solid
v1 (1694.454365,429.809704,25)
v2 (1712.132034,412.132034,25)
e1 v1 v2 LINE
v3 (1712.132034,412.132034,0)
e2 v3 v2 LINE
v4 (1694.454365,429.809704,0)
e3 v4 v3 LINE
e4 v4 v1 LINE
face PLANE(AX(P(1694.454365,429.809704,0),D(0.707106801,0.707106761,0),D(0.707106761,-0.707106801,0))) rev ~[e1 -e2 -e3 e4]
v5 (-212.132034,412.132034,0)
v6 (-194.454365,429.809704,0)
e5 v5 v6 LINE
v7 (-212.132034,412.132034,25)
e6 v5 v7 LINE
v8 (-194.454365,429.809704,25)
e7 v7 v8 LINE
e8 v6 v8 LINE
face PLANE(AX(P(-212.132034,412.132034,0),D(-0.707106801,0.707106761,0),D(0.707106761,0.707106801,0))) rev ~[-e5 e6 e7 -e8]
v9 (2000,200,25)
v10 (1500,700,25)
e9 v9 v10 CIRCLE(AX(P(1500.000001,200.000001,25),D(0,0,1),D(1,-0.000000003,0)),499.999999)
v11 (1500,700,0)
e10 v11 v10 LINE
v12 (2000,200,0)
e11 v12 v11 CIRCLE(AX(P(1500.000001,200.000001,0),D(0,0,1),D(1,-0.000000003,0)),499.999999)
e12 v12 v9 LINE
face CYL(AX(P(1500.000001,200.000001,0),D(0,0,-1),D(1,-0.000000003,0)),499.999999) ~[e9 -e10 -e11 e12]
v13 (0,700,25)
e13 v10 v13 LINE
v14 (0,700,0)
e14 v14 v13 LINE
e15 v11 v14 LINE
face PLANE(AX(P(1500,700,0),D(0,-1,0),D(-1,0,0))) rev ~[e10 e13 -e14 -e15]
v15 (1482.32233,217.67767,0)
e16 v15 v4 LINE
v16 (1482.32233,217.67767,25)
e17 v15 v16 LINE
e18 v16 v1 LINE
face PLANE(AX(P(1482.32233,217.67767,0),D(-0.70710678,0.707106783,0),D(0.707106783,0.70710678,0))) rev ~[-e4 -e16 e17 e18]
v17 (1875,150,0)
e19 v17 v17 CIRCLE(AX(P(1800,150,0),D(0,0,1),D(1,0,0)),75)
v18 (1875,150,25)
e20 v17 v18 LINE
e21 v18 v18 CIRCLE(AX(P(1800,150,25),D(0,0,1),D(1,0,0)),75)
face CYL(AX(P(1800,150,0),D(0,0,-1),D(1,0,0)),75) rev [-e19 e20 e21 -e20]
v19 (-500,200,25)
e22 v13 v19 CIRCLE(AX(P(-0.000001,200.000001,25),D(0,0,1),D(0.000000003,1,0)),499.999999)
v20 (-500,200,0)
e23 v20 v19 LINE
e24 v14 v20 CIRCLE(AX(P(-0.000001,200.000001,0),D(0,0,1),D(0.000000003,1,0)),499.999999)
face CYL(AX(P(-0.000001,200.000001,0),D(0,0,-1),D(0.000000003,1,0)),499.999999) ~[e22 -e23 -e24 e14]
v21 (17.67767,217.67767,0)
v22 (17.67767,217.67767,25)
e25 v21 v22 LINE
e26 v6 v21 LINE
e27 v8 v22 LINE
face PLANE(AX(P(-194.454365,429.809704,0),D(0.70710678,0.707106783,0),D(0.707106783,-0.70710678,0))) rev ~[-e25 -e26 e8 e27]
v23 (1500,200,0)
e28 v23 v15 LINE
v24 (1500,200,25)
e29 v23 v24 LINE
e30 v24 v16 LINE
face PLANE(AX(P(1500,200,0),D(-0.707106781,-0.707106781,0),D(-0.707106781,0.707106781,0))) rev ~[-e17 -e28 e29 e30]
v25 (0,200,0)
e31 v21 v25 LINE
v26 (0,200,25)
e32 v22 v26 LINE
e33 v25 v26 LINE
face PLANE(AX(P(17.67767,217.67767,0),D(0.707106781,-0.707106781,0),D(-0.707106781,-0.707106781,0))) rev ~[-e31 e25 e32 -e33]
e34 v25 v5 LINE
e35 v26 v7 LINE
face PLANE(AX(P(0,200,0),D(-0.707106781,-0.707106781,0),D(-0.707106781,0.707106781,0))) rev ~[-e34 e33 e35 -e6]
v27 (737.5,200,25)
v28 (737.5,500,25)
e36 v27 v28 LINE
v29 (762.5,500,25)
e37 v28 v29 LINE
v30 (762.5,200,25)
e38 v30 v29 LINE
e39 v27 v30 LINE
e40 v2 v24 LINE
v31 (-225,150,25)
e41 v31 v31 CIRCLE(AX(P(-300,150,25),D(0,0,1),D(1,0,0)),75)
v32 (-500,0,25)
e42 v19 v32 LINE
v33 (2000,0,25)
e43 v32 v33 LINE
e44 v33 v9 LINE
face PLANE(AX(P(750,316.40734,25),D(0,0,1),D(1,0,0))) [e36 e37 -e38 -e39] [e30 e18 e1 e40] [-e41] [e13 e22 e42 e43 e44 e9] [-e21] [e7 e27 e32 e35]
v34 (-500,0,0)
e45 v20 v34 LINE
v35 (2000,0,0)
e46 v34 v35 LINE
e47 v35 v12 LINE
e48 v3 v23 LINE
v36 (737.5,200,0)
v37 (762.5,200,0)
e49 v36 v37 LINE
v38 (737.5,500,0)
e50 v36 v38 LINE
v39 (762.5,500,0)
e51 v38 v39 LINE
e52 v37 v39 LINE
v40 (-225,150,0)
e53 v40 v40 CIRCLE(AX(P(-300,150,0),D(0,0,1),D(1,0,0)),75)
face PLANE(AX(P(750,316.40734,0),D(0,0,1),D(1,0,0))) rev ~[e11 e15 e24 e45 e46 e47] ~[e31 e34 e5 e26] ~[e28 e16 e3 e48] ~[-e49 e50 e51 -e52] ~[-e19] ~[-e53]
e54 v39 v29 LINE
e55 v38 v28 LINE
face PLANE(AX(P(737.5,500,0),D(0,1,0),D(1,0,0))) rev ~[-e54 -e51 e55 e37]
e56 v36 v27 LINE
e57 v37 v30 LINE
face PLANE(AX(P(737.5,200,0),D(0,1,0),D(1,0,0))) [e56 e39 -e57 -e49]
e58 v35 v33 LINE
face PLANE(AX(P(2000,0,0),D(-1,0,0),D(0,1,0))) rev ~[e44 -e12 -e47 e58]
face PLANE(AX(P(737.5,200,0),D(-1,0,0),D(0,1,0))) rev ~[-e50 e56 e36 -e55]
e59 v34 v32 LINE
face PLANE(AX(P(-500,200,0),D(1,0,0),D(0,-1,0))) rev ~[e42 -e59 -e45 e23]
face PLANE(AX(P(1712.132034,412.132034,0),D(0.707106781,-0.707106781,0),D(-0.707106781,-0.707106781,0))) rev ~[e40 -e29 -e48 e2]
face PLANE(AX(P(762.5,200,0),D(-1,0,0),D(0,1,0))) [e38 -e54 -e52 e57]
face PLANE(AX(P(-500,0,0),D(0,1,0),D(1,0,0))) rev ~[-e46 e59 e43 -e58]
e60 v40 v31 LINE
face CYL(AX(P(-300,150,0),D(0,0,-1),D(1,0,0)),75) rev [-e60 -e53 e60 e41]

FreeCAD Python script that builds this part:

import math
import FreeCAD as App
import Part
import Sketcher

V = App.Vector
Q = App.Units.Quantity

doc = App.newDocument("Part")
params = doc.addObject("Spreadsheet::Sheet", "Params")
for row, (alias, value) in enumerate([
    ("sketch1_diameter", "150 mm"),
    ("sketch1_radius", "499.999999 mm"),
    ("sketch1_width", "2500 mm"),
    ("sketch1_width2", "25 mm"),
    ("sketch1_height", "200 mm"),
    ("pad1_length", "25 mm"),
], start=1):
    params.set(f"A{row}", alias)
    params.set(f"B{row}", "=" + value)
    params.setAlias(f"B{row}", alias)

body = doc.addObject("PartDesign::Body", "Body")

sketch1 = body.newObject("Sketcher::SketchObject", "Sketch")
sketch1.AttachmentSupport = (doc.getObject("XY_Plane"), [""])
sketch1.MapMode = "FlatFace"
sketch1.addGeometry(Part.LineSegment(V(-500, 200, 0), V(-500, 0, 0)), False)
sketch1.addGeometry(Part.LineSegment(V(-500, 0, 0), V(2000, 0, 0)), False)
sketch1.addGeometry(Part.LineSegment(V(2000, 0, 0), V(2000, 200, 0)), False)
sketch1.addGeometry(Part.ArcOfCircle(Part.Circle(V(1500, 200, 0), V(0, 0, 1), 500), math.radians(0), math.radians(90)), False)
sketch1.addGeometry(Part.LineSegment(V(1500, 700, 0), V(0, 700, 0)), False)
sketch1.addGeometry(Part.ArcOfCircle(Part.Circle(V(0, 200, 0), V(0, 0, 1), 500), math.radians(90), math.radians(180)), False)
sketch1.addGeometry(Part.Circle(V(-300, 150, 0), V(0, 0, 1), 75), False)
sketch1.addGeometry(Part.Circle(V(1800, 150, 0), V(0, 0, 1), 75), False)
sketch1.addGeometry(Part.LineSegment(V(-194, 430, 0), V(18, 218, 0)), False)
sketch1.addGeometry(Part.LineSegment(V(18, 218, 0), V(0, 200, 0)), False)
sketch1.addGeometry(Part.LineSegment(V(0, 200, 0), V(-212, 412, 0)), False)
sketch1.addGeometry(Part.LineSegment(V(-212, 412, 0), V(-194, 430, 0)), False)
sketch1.addGeometry(Part.LineSegment(V(762, 200, 0), V(738, 200, 0)), False)
sketch1.addGeometry(Part.LineSegment(V(738, 200, 0), V(738, 500, 0)), False)
sketch1.addGeometry(Part.LineSegment(V(738, 500, 0), V(762, 500, 0)), False)
sketch1.addGeometry(Part.LineSegment(V(762, 500, 0), V(762, 200, 0)), False)
sketch1.addGeometry(Part.LineSegment(V(1694, 430, 0), V(1712, 412, 0)), False)
sketch1.addGeometry(Part.LineSegment(V(1712, 412, 0), V(1500, 200, 0)), False)
sketch1.addGeometry(Part.LineSegment(V(1500, 200, 0), V(1482, 218, 0)), False)
sketch1.addGeometry(Part.LineSegment(V(1482, 218, 0), V(1694, 430, 0)), False)
sketch1.addConstraint(Sketcher.Constraint("Coincident", 0, 2, 1, 1))
sketch1.addConstraint(Sketcher.Constraint("Coincident", 1, 2, 2, 1))
sketch1.addConstraint(Sketcher.Constraint("Tangent", 2, 2, 3, 1))
sketch1.addConstraint(Sketcher.Constraint("Tangent", 3, 2, 4, 1))
sketch1.addConstraint(Sketcher.Constraint("Tangent", 4, 2, 5, 1))
sketch1.addConstraint(Sketcher.Constraint("Tangent", 5, 2, 0, 1))
sketch1.addConstraint(Sketcher.Constraint("Coincident", 8, 2, 9, 1))
sketch1.addConstraint(Sketcher.Constraint("Coincident", 9, 2, 10, 1))
sketch1.addConstraint(Sketcher.Constraint("Coincident", 10, 2, 11, 1))
sketch1.addConstraint(Sketcher.Constraint("Coincident", 11, 2, 8, 1))
sketch1.addConstraint(Sketcher.Constraint("Coincident", 12, 2, 13, 1))
sketch1.addConstraint(Sketcher.Constraint("Coincident", 13, 2, 14, 1))
sketch1.addConstraint(Sketcher.Constraint("Coincident", 14, 2, 15, 1))
sketch1.addConstraint(Sketcher.Constraint("Coincident", 15, 2, 12, 1))
sketch1.addConstraint(Sketcher.Constraint("Coincident", 16, 2, 17, 1))
sketch1.addConstraint(Sketcher.Constraint("Coincident", 17, 2, 18, 1))
sketch1.addConstraint(Sketcher.Constraint("Coincident", 18, 2, 19, 1))
sketch1.addConstraint(Sketcher.Constraint("Coincident", 19, 2, 16, 1))
sketch1.addConstraint(Sketcher.Constraint("Vertical", 0))
sketch1.addConstraint(Sketcher.Constraint("Horizontal", 1))
sketch1.addConstraint(Sketcher.Constraint("Vertical", 2))
sketch1.addConstraint(Sketcher.Constraint("Horizontal", 4))
sketch1.addConstraint(Sketcher.Constraint("Horizontal", 12))
sketch1.addConstraint(Sketcher.Constraint("Vertical", 13))
sketch1.addConstraint(Sketcher.Constraint("Horizontal", 14))
sketch1.addConstraint(Sketcher.Constraint("Vertical", 15))
sketch1.addConstraint(Sketcher.Constraint("Coincident", 9, 2, 5, 3))
sketch1.addConstraint(Sketcher.Constraint("Coincident", 17, 2, 3, 3))
sketch1.addConstraint(Sketcher.Constraint("Equal", 3, 5))
sketch1.addConstraint(Sketcher.Constraint("Equal", 6, 7))
sketch1.addConstraint(Sketcher.Constraint("PointOnObject", 5, 3, -2))
sketch1.addConstraint(Sketcher.Constraint("PointOnObject", 0, 2, -1))
sketch1.addConstraint(Sketcher.Constraint("Perpendicular", 8, 9))
sketch1.addConstraint(Sketcher.Constraint("Perpendicular", 9, 10))
sketch1.addConstraint(Sketcher.Constraint("Perpendicular", 10, 11))
sketch1.addConstraint(Sketcher.Constraint("Perpendicular", 11, 16))
sketch1.addConstraint(Sketcher.Constraint("Perpendicular", 16, 17))
sketch1.addConstraint(Sketcher.Constraint("Perpendicular", 17, 18))
sketch1.addConstraint(Sketcher.Constraint("Perpendicular", 18, 19))
sketch1.addConstraint(Sketcher.Constraint("Horizontal", 6, 3, 7, 3))
sketch1.addConstraint(Sketcher.Constraint("Horizontal", 9, 2, 12, 2))
sketch1.addConstraint(Sketcher.Constraint("Horizontal", 10, 2, 16, 2))
sketch1.addConstraint(Sketcher.Constraint("Horizontal", 8, 2, 18, 2))
sketch1.addConstraint(Sketcher.Constraint("Equal", 11, 16))
sketch1.addConstraint(Sketcher.Constraint("Diameter", 6, Q("150 mm")))
sketch1.addConstraint(Sketcher.Constraint("Radius", 3, Q("499.999999 mm")))
sketch1.addConstraint(Sketcher.Constraint("DistanceX", 1, 1, 1, 2, Q("2500 mm")))
sketch1.addConstraint(Sketcher.Constraint("DistanceX", 12, 2, 12, 1, Q("25 mm")))
sketch1.addConstraint(Sketcher.Constraint("DistanceY", 0, 2, 0, 1, Q("200 mm")))
sketch1.addConstraint(Sketcher.Constraint("DistanceY", 13, 1, 13, 2, Q("300 mm")))
sketch1.addConstraint(Sketcher.Constraint("Distance", 8, Q("300 mm")))
sketch1.addConstraint(Sketcher.Constraint("Distance", 9, Q("25.000001 mm")))
sketch1.addConstraint(Sketcher.Constraint("DistanceX", 6, 3, -1, 1, Q("300 mm")))
sketch1.addConstraint(Sketcher.Constraint("DistanceY", -1, 1, 6, 3, Q("150 mm")))
sketch1.addConstraint(Sketcher.Constraint("DistanceX", -1, 1, 7, 3, Q("1800 mm")))
sketch1.addConstraint(Sketcher.Constraint("DistanceX", -1, 1, 12, 2, Q("737.5 mm")))
sketch1.setExpression("Constraints[44]", "Params.sketch1_diameter")
sketch1.setExpression("Constraints[45]", "Params.sketch1_radius")
sketch1.setExpression("Constraints[46]", "Params.sketch1_width")
sketch1.setExpression("Constraints[47]", "Params.sketch1_width2")
sketch1.setExpression("Constraints[48]", "Params.sketch1_height")
pad1 = body.newObject("PartDesign::Pad", "Pad")
pad1.Profile = sketch1
pad1.setExpression("Length", "Params.pad1_length")

doc.recompute()
